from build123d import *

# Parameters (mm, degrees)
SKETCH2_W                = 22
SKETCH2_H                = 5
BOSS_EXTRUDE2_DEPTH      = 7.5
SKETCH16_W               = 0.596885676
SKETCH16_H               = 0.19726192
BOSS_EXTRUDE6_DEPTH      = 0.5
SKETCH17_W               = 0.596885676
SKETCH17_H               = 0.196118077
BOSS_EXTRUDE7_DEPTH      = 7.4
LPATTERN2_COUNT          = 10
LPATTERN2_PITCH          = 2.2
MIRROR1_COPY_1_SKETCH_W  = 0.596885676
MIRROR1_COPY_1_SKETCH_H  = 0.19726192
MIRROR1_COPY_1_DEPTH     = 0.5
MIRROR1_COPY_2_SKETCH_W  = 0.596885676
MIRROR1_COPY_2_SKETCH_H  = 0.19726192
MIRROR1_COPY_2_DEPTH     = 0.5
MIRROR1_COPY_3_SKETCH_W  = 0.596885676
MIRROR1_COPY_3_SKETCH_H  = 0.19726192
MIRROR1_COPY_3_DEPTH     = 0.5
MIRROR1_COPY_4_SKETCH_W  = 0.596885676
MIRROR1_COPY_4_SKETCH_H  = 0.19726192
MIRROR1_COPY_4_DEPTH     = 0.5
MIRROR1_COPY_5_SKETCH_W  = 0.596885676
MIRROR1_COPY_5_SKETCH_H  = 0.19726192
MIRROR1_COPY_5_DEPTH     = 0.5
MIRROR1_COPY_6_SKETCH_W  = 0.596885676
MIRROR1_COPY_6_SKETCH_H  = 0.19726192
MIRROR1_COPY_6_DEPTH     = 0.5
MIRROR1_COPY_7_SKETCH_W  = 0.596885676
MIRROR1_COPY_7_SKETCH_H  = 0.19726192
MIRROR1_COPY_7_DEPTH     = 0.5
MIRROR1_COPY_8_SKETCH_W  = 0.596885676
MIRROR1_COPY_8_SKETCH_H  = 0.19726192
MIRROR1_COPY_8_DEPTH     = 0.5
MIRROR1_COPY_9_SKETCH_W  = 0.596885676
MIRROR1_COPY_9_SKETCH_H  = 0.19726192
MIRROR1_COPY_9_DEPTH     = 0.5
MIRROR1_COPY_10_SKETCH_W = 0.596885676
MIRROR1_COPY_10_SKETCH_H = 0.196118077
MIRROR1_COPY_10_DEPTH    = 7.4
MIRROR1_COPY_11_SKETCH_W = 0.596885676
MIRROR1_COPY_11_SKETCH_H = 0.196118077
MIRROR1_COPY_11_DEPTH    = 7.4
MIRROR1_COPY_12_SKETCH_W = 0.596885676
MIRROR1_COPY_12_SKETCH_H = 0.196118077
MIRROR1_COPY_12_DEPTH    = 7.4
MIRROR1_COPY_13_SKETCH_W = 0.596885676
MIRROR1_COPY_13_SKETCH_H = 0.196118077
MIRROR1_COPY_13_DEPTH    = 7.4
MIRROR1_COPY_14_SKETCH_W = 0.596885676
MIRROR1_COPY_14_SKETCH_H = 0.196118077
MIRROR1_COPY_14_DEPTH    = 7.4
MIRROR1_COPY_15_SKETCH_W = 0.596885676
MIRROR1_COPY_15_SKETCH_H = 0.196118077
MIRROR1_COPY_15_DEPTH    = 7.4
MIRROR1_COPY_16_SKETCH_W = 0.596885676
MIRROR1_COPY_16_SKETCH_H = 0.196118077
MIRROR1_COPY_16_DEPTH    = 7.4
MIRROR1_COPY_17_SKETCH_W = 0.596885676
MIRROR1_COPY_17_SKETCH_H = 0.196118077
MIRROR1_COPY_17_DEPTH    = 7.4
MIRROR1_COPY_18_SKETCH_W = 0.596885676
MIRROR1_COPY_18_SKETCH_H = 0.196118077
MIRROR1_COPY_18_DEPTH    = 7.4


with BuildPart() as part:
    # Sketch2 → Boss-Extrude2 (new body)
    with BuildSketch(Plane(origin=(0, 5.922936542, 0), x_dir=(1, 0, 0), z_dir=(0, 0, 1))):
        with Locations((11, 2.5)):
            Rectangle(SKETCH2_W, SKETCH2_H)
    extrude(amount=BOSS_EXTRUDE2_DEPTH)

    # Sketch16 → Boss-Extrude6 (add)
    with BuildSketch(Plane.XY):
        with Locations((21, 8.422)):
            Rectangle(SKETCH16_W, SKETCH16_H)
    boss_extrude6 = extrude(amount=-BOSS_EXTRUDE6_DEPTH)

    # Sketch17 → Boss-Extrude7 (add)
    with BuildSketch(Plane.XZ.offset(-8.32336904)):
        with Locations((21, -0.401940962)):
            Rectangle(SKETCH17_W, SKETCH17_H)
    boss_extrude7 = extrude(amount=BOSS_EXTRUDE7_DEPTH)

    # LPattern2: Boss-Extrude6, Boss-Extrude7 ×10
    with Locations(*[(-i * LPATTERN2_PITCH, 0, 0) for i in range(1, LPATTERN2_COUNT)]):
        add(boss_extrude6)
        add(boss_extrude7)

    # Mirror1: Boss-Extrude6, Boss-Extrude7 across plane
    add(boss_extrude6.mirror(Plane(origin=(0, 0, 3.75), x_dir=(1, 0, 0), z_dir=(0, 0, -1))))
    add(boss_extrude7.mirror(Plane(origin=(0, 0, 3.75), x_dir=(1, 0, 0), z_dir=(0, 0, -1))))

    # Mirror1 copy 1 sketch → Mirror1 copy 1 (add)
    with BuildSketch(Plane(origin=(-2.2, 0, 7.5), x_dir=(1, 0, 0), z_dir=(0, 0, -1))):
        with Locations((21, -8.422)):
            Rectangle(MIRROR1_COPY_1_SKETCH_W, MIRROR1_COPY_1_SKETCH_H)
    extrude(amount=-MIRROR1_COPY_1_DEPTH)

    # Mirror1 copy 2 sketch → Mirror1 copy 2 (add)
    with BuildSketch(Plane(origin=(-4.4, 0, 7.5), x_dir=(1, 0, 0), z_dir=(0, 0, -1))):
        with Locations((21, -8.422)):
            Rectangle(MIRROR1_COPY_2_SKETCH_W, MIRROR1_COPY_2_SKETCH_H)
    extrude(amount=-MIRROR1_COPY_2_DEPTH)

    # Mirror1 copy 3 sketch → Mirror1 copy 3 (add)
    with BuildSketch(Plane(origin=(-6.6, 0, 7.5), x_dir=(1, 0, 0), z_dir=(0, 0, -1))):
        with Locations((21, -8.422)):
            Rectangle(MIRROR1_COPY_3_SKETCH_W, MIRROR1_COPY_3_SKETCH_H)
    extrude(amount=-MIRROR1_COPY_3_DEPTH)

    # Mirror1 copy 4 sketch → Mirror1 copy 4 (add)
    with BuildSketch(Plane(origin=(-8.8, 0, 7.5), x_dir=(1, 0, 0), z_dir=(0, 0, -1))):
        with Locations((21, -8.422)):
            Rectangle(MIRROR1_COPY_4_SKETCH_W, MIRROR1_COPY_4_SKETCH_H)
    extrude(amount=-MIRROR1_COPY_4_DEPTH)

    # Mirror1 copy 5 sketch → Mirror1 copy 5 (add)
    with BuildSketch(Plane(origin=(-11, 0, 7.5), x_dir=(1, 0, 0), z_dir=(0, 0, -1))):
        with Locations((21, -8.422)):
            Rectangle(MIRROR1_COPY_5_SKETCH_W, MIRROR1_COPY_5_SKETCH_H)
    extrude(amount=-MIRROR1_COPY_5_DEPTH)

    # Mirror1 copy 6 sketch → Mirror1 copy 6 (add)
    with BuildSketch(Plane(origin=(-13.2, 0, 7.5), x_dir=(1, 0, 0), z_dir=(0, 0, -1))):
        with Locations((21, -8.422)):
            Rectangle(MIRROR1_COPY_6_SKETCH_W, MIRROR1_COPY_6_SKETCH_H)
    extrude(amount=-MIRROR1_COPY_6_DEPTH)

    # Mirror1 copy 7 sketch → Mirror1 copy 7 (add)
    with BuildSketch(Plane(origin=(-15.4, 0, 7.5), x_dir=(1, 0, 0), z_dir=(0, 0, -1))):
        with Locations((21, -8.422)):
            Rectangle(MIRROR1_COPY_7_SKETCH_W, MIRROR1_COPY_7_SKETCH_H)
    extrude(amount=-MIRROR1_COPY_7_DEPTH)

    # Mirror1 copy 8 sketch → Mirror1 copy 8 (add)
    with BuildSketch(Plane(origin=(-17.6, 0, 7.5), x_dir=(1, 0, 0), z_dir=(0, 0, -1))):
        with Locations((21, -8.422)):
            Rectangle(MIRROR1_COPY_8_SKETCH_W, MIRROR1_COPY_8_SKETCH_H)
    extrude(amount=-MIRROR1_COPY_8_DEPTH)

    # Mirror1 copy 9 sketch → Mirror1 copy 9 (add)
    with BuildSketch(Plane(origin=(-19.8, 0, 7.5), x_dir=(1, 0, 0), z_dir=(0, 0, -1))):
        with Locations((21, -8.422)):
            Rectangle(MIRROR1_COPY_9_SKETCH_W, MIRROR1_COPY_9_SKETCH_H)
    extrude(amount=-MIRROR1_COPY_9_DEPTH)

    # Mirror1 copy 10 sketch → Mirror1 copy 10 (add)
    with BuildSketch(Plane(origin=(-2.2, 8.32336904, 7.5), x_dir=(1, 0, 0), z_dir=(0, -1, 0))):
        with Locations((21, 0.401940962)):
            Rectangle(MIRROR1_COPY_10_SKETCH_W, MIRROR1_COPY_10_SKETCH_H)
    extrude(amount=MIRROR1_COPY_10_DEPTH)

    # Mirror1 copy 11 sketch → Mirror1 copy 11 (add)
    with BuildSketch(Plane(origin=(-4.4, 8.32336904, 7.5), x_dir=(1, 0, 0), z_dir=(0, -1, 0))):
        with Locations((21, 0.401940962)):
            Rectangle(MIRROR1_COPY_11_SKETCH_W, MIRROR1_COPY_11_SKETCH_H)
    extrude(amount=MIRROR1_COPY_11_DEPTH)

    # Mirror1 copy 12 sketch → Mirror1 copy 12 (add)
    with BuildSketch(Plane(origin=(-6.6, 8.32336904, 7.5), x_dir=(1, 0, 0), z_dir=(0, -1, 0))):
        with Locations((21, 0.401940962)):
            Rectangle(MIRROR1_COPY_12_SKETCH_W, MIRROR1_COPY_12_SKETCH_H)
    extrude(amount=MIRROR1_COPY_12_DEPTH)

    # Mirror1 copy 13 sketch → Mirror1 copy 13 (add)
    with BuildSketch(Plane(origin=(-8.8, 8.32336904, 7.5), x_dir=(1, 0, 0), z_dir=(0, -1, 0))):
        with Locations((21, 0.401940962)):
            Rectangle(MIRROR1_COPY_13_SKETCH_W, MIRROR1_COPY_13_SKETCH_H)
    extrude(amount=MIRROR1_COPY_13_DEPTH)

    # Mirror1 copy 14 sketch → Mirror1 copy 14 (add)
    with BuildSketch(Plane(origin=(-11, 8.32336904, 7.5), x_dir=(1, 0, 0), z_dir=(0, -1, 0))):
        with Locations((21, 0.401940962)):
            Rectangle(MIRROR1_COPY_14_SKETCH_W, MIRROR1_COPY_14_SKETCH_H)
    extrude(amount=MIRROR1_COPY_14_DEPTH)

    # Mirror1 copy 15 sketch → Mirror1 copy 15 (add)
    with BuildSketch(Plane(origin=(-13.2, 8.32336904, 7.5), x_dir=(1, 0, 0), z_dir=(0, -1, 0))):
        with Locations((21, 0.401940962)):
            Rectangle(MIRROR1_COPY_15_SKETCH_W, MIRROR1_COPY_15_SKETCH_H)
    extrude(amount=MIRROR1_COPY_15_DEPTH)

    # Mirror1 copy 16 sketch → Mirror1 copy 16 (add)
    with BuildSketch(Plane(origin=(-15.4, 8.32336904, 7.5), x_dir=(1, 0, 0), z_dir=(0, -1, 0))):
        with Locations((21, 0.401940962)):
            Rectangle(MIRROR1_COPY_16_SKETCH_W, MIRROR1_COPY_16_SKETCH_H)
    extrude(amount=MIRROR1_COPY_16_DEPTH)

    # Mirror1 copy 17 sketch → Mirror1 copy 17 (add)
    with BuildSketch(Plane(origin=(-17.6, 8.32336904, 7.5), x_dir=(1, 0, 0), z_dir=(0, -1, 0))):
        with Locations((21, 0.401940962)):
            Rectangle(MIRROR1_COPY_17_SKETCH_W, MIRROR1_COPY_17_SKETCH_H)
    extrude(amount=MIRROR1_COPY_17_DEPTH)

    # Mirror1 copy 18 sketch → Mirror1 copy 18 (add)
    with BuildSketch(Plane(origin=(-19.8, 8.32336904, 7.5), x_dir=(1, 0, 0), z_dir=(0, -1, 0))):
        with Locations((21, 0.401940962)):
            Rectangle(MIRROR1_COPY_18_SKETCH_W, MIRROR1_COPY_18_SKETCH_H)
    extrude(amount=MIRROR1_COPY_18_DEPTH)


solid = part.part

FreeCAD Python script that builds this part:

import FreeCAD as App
import Part
import Sketcher
Q = App.Units.Quantity


def add_polygon(sketch, points):
    """Adds a closed chain of lines whose ends are joined by coincident constraints."""
    first, n = sketch.GeometryCount, len(points)
    for a, b in zip(points, points[1:] + points[:1]):
        sketch.addGeometry(Part.LineSegment(App.Vector(*a, 0), App.Vector(*b, 0)), False)
    for i in range(n):
        sketch.addConstraint(Sketcher.Constraint("Coincident", first + i, 2, first + (i + 1) % n, 1))

doc = App.newDocument("Part")
body = doc.addObject("PartDesign::Body", "Body")

# Sketch on XY plane
sketch1 = body.newObject("Sketcher::SketchObject", "Sketch")
sketch1.AttachmentSupport = (doc.getObject("XY_Plane"), [""])
sketch1.MapMode = "FlatFace"
add_polygon(sketch1, [(0, 10.922937), (0, 5.922937), (22, 5.922937), (22, 10.922937)])  # lines 0-3
sketch1.addConstraint([
    Sketcher.Constraint("Vertical", 0),
    Sketcher.Constraint("Horizontal", 1),
    Sketcher.Constraint("Vertical", 2),
    Sketcher.Constraint("Horizontal", 3),
    Sketcher.Constraint("PointOnObject", 0, 2, -2),
    Sketcher.Constraint("DistanceX", 1, 1, 1, 2, Q("22 mm")),
    Sketcher.Constraint("DistanceY", 0, 2, 0, 1, Q("5 mm")),
    Sketcher.Constraint("DistanceY", -1, 1, 0, 2, Q("5.922937 mm")),
])
pad1 = body.newObject("PartDesign::Pad", "Pad")
pad1.Profile = sketch1
pad1.Length = 7.5

# Sketch on XY plane
sketch2 = body.newObject("Sketcher::SketchObject", "Sketch001")
sketch2.AttachmentSupport = (doc.getObject("XY_Plane"), [""])
sketch2.MapMode = "FlatFace"
add_polygon(sketch2, [(20.701557, 8.520631), (20.701557, 8.323369), (21.298443, 8.323369), (21.298443, 8.520631)])  # lines 0-3
sketch2.addConstraint([
    Sketcher.Constraint("Vertical", 0),
    Sketcher.Constraint("Horizontal", 1),
    Sketcher.Constraint("Vertical", 2),
    Sketcher.Constraint("Horizontal", 3),
    Sketcher.Constraint("DistanceY", 0, 2, 0, 1, Q("0.197262 mm")),
    Sketcher.Constraint("DistanceX", 1, 1, 1, 2, Q("0.596886 mm")),
    Sketcher.Constraint("DistanceY", -1, 1, 0, 2, Q("8.323369 mm")),
    Sketcher.Constraint("DistanceX", -1, 1, 0, 2, Q("20.701557 mm")),
])
pad2 = body.newObject("PartDesign::Pad", "Pad001")
pad2.Profile = sketch2
pad2.Length = 0.5
pad2.Reversed = True

# Sketch on XZ plane
sketch3 = body.newObject("Sketcher::SketchObject", "Sketch002")
sketch3.AttachmentSupport = (doc.getObject("XZ_Plane"), [""])
sketch3.MapMode = "FlatFace"
sketch3.AttachmentOffset = App.Placement(App.Vector(0, 0, -8.323369), App.Rotation())
add_polygon(sketch3, [(20.701557, -0.303882), (20.701557, -0.5), (21.298443, -0.5), (21.298443, -0.303882)])  # lines 0-3
sketch3.addConstraint([
    Sketcher.Constraint("Vertical", 0),
    Sketcher.Constraint("Horizontal", 1),
    Sketcher.Constraint("Vertical", 2),
    Sketcher.Constraint("Horizontal", 3),
    Sketcher.Constraint("DistanceY", 0, 2, -1, 1, Q("0.5 mm")),
    Sketcher.Constraint("DistanceY", 0, 2, 0, 1, Q("0.196118 mm")),
    Sketcher.Constraint("DistanceX", 1, 1, 1, 2, Q("0.596886 mm")),
    Sketcher.Constraint("DistanceX", -1, 1, 0, 2, Q("20.701557 mm")),
])
pad3 = body.newObject("PartDesign::Pad", "Pad002")
pad3.Profile = sketch3
pad3.Length = 7.4
doc.recompute()

linearpattern = body.newObject("PartDesign::LinearPattern", "LinearPattern")
linearpattern.Originals = [pad2, pad3]
linearpattern.Direction = (doc.getObject("X_Axis"), [""])
linearpattern.Mode = "offset"
linearpattern.Offset = 2.2
linearpattern.Occurrences = 10
linearpattern.Reversed = True
body.Tip = linearpattern
doc.recompute()

datumplane = body.newObject("PartDesign::Plane", "DatumPlane")
datumplane.AttachmentSupport = (doc.getObject("XY_Plane"), [""])
datumplane.MapMode = "FlatFace"
datumplane.AttachmentOffset = App.Placement(App.Vector(0, 0, 3.75), App.Rotation())
mirrored = body.newObject("PartDesign::Mirrored", "Mirrored")
mirrored.Originals = [pad2, pad3]
mirrored.MirrorPlane = (datumplane, [""])
body.Tip = mirrored

# Sketch on XY plane
sketch4 = body.newObject("Sketcher::SketchObject", "Sketch003")
sketch4.AttachmentSupport = (doc.getObject("XY_Plane"), [""])
sketch4.MapMode = "FlatFace"
sketch4.AttachmentOffset = App.Placement(App.Vector(0, 0, 7.5), App.Rotation())
add_polygon(sketch4, [(18.501557, 8.323369), (18.501557, 8.520631), (19.098443, 8.520631), (19.098443, 8.323369)])  # lines 0-3
sketch4.addConstraint([
    Sketcher.Constraint("Vertical", 0),
    Sketcher.Constraint("Horizontal", 1),
    Sketcher.Constraint("Vertical", 2),
    Sketcher.Constraint("Horizontal", 3),
    Sketcher.Constraint("DistanceY", 0, 1, 0, 2, Q("0.197262 mm")),
    Sketcher.Constraint("DistanceX", 1, 1, 1, 2, Q("0.596886 mm")),
    Sketcher.Constraint("DistanceY", -1, 1, 0, 2, Q("8.520631 mm")),
    Sketcher.Constraint("DistanceX", -1, 1, 0, 2, Q("18.501557 mm")),
])
pad4 = body.newObject("PartDesign::Pad", "Pad003")
pad4.Profile = sketch4
pad4.Length = 0.5

# Sketch on XY plane
sketch5 = body.newObject("Sketcher::SketchObject", "Sketch004")
sketch5.AttachmentSupport = (doc.getObject("XY_Plane"), [""])
sketch5.MapMode = "FlatFace"
sketch5.AttachmentOffset = App.Placement(App.Vector(0, 0, 7.5), App.Rotation())
add_polygon(sketch5, [(16.301557, 8.323369), (16.301557, 8.520631), (16.898443, 8.520631), (16.898443, 8.323369)])  # lines 0-3
sketch5.addConstraint([
    Sketcher.Constraint("Vertical", 0),
    Sketcher.Constraint("Horizontal", 1),
    Sketcher.Constraint("Vertical", 2),
    Sketcher.Constraint("Horizontal", 3),
    Sketcher.Constraint("DistanceY", 0, 1, 0, 2, Q("0.197262 mm")),
    Sketcher.Constraint("DistanceX", 1, 1, 1, 2, Q("0.596886 mm")),
    Sketcher.Constraint("DistanceY", -1, 1, 0, 2, Q("8.520631 mm")),
    Sketcher.Constraint("DistanceX", -1, 1, 0, 2, Q("16.301557 mm")),
])
pad5 = body.newObject("PartDesign::Pad", "Pad004")
pad5.Profile = sketch5
pad5.Length = 0.5

# Sketch on XY plane
sketch6 = body.newObject("Sketcher::SketchObject", "Sketch005")
sketch6.AttachmentSupport = (doc.getObject("XY_Plane"), [""])
sketch6.MapMode = "FlatFace"
sketch6.AttachmentOffset = App.Placement(App.Vector(0, 0, 7.5), App.Rotation())
add_polygon(sketch6, [(14.101557, 8.323369), (14.101557, 8.520631), (14.698443, 8.520631), (14.698443, 8.323369)])  # lines 0-3
sketch6.addConstraint([
    Sketcher.Constraint("Vertical", 0),
    Sketcher.Constraint("Horizontal", 1),
    Sketcher.Constraint("Vertical", 2),
    Sketcher.Constraint("Horizontal", 3),
    Sketcher.Constraint("DistanceY", 0, 1, 0, 2, Q("0.197262 mm")),
    Sketcher.Constraint("DistanceX", 1, 1, 1, 2, Q("0.596886 mm")),
    Sketcher.Constraint("DistanceY", -1, 1, 0, 2, Q("8.520631 mm")),
    Sketcher.Constraint("DistanceX", -1, 1, 0, 2, Q("14.101557 mm")),
])
pad6 = body.newObject("PartDesign::Pad", "Pad005")
pad6.Profile = sketch6
pad6.Length = 0.5

# Sketch on XY plane
sketch7 = body.newObject("Sketcher::SketchObject", "Sketch006")
sketch7.AttachmentSupport = (doc.getObject("XY_Plane"), [""])
sketch7.MapMode = "FlatFace"
sketch7.AttachmentOffset = App.Placement(App.Vector(0, 0, 7.5), App.Rotation())
add_polygon(sketch7, [(11.901557, 8.323369), (11.901557, 8.520631), (12.498443, 8.520631), (12.498443, 8.323369)])  # lines 0-3
sketch7.addConstraint([
    Sketcher.Constraint("Vertical", 0),
    Sketcher.Constraint("Horizontal", 1),
    Sketcher.Constraint("Vertical", 2),
    Sketcher.Constraint("Horizontal", 3),
    Sketcher.Constraint("DistanceY", 0, 1, 0, 2, Q("0.197262 mm")),
    Sketcher.Constraint("DistanceX", 1, 1, 1, 2, Q("0.596886 mm")),
    Sketcher.Constraint("DistanceY", -1, 1, 0, 2, Q("8.520631 mm")),
    Sketcher.Constraint("DistanceX", -1, 1, 0, 2, Q("11.901557 mm")),
])
pad7 = body.newObject("PartDesign::Pad", "Pad006")
pad7.Profile = sketch7
pad7.Length = 0.5

# Sketch on XY plane
sketch8 = body.newObject("Sketcher::SketchObject", "Sketch007")
sketch8.AttachmentSupport = (doc.getObject("XY_Plane"), [""])
sketch8.MapMode = "FlatFace"
sketch8.AttachmentOffset = App.Placement(App.Vector(0, 0, 7.5), App.Rotation())
add_polygon(sketch8, [(9.701557, 8.323369), (9.701557, 8.520631), (10.298443, 8.520631), (10.298443, 8.323369)])  # lines 0-3
sketch8.addConstraint([
    Sketcher.Constraint("Vertical", 0),
    Sketcher.Constraint("Horizontal", 1),
    Sketcher.Constraint("Vertical", 2),
    Sketcher.Constraint("Horizontal", 3),
    Sketcher.Constraint("DistanceY", 0, 1, 0, 2, Q("0.197262 mm")),
    Sketcher.Constraint("DistanceX", 1, 1, 1, 2, Q("0.596886 mm")),
    Sketcher.Constraint("DistanceY", -1, 1, 0, 2, Q("8.520631 mm")),
    Sketcher.Constraint("DistanceX", -1, 1, 0, 2, Q("9.701557 mm")),
])
pad8 = body.newObject("PartDesign::Pad", "Pad007")
pad8.Profile = sketch8
pad8.Length = 0.5

# Sketch on XY plane
sketch9 = body.newObject("Sketcher::SketchObject", "Sketch008")
sketch9.AttachmentSupport = (doc.getObject("XY_Plane"), [""])
sketch9.MapMode = "FlatFace"
sketch9.AttachmentOffset = App.Placement(App.Vector(0, 0, 7.5), App.Rotation())
add_polygon(sketch9, [(7.501557, 8.323369), (7.501557, 8.520631), (8.098443, 8.520631), (8.098443, 8.323369)])  # lines 0-3
sketch9.addConstraint([
    Sketcher.Constraint("Vertical", 0),
    Sketcher.Constraint("Horizontal", 1),
    Sketcher.Constraint("Vertical", 2),
    Sketcher.Constraint("Horizontal", 3),
    Sketcher.Constraint("DistanceY", 0, 1, 0, 2, Q("0.197262 mm")),
    Sketcher.Constraint("DistanceX", 1, 1, 1, 2, Q("0.596886 mm")),
    Sketcher.Constraint("DistanceY", -1, 1, 0, 2, Q("8.520631 mm")),
    Sketcher.Constraint("DistanceX", -1, 1, 0, 2, Q("7.501557 mm")),
])
pad9 = body.newObject("PartDesign::Pad", "Pad008")
pad9.Profile = sketch9
pad9.Length = 0.5

# Sketch on XY plane
sketch10 = body.newObject("Sketcher::SketchObject", "Sketch009")
sketch10.AttachmentSupport = (doc.getObject("XY_Plane"), [""])
sketch10.MapMode = "FlatFace"
sketch10.AttachmentOffset = App.Placement(App.Vector(0, 0, 7.5), App.Rotation())
add_polygon(sketch10, [(5.301557, 8.323369), (5.301557, 8.520631), (5.898443, 8.520631), (5.898443, 8.323369)])  # lines 0-3
sketch10.addConstraint([
    Sketcher.Constraint("Vertical", 0),
    Sketcher.Constraint("Horizontal", 1),
    Sketcher.Constraint("Vertical", 2),
    Sketcher.Constraint("Horizontal", 3),
    Sketcher.Constraint("DistanceY", 0, 1, 0, 2, Q("0.197262 mm")),
    Sketcher.Constraint("DistanceX", 1, 1, 1, 2, Q("0.596886 mm")),
    Sketcher.Constraint("DistanceY", -1, 1, 0, 2, Q("8.520631 mm")),
    Sketcher.Constraint("DistanceX", -1, 1, 0, 2, Q("5.301557 mm")),
])
pad10 = body.newObject("PartDesign::Pad", "Pad009")
pad10.Profile = sketch10
pad10.Length = 0.5

# Sketch on XY plane
sketch11 = body.newObject("Sketcher::SketchObject", "Sketch010")
sketch11.AttachmentSupport = (doc.getObject("XY_Plane"), [""])
sketch11.MapMode = "FlatFace"
sketch11.AttachmentOffset = App.Placement(App.Vector(0, 0, 7.5), App.Rotation())
add_polygon(sketch11, [(3.101557, 8.323369), (3.101557, 8.520631), (3.698443, 8.520631), (3.698443, 8.323369)])  # lines 0-3
sketch11.addConstraint([
    Sketcher.Constraint("Vertical", 0),
    Sketcher.Constraint("Horizontal", 1),
    Sketcher.Constraint("Vertical", 2),
    Sketcher.Constraint("Horizontal", 3),
    Sketcher.Constraint("DistanceY", 0, 1, 0, 2, Q("0.197262 mm")),
    Sketcher.Constraint("DistanceX", 1, 1, 1, 2, Q("0.596886 mm")),
    Sketcher.Constraint("DistanceY", -1, 1, 0, 2, Q("8.520631 mm")),
    Sketcher.Constraint("DistanceX", -1, 1, 0, 2, Q("3.101557 mm")),
])
pad11 = body.newObject("PartDesign::Pad", "Pad010")
pad11.Profile = sketch11
pad11.Length = 0.5

# Sketch on XY plane
sketch12 = body.newObject("Sketcher::SketchObject", "Sketch011")
sketch12.AttachmentSupport = (doc.getObject("XY_Plane"), [""])
sketch12.MapMode = "FlatFace"
sketch12.AttachmentOffset = App.Placement(App.Vector(0, 0, 7.5), App.Rotation())
add_polygon(sketch12, [(0.901557, 8.323369), (0.901557, 8.520631), (1.498443, 8.520631), (1.498443, 8.323369)])  # lines 0-3
sketch12.addConstraint([
    Sketcher.Constraint("Vertical", 0),
    Sketcher.Constraint("Horizontal", 1),
    Sketcher.Constraint("Vertical", 2),
    Sketcher.Constraint("Horizontal", 3),
    Sketcher.Constraint("DistanceY", 0, 1, 0, 2, Q("0.197262 mm")),
    Sketcher.Constraint("DistanceX", 1, 1, 1, 2, Q("0.596886 mm")),
    Sketcher.Constraint("DistanceY", -1, 1, 0, 2, Q("8.520631 mm")),
    Sketcher.Constraint("DistanceX", -1, 1, 0, 2, Q("0.901557 mm")),
])
pad12 = body.newObject("PartDesign::Pad", "Pad011")
pad12.Profile = sketch12
pad12.Length = 0.5

# Sketch on XZ plane
sketch13 = body.newObject("Sketcher::SketchObject", "Sketch012")
sketch13.AttachmentSupport = (doc.getObject("XZ_Plane"), [""])
sketch13.MapMode = "FlatFace"
sketch13.AttachmentOffset = App.Placement(App.Vector(0, 0, -8.323369), App.Rotation())
add_polygon(sketch13, [(18.501557, 8), (18.501557, 7.803882), (19.098443, 7.803882), (19.098443, 8)])  # lines 0-3
sketch13.addConstraint([
    Sketcher.Constraint("Vertical", 0),
    Sketcher.Constraint("Horizontal", 1),
    Sketcher.Constraint("Vertical", 2),
    Sketcher.Constraint("Horizontal", 3),
    Sketcher.Constraint("DistanceY", -1, 1, 2, 2, Q("8 mm")),
    Sketcher.Constraint("DistanceY", 0, 2, 0, 1, Q("0.196118 mm")),
    Sketcher.Constraint("DistanceX", 1, 1, 1, 2, Q("0.596886 mm")),
    Sketcher.Constraint("DistanceX", -1, 1, 0, 2, Q("18.501557 mm")),
])
pad13 = body.newObject("PartDesign::Pad", "Pad012")
pad13.Profile = sketch13
pad13.Length = 7.4

# Sketch on XZ plane
sketch14 = body.newObject("Sketcher::SketchObject", "Sketch013")
sketch14.AttachmentSupport = (doc.getObject("XZ_Plane"), [""])
sketch14.MapMode = "FlatFace"
sketch14.AttachmentOffset = App.Placement(App.Vector(0, 0, -8.323369), App.Rotation())
add_polygon(sketch14, [(16.301557, 8), (16.301557, 7.803882), (16.898443, 7.803882), (16.898443, 8)])  # lines 0-3
sketch14.addConstraint([
    Sketcher.Constraint("Vertical", 0),
    Sketcher.Constraint("Horizontal", 1),
    Sketcher.Constraint("Vertical", 2),
    Sketcher.Constraint("Horizontal", 3),
    Sketcher.Constraint("DistanceY", -1, 1, 2, 2, Q("8 mm")),
    Sketcher.Constraint("DistanceY", 0, 2, 0, 1, Q("0.196118 mm")),
    Sketcher.Constraint("DistanceX", 1, 1, 1, 2, Q("0.596886 mm")),
    Sketcher.Constraint("DistanceX", -1, 1, 0, 2, Q("16.301557 mm")),
])
pad14 = body.newObject("PartDesign::Pad", "Pad013")
pad14.Profile = sketch14
pad14.Length = 7.4

# Sketch on XZ plane
sketch15 = body.newObject("Sketcher::SketchObject", "Sketch014")
sketch15.AttachmentSupport = (doc.getObject("XZ_Plane"), [""])
sketch15.MapMode = "FlatFace"
sketch15.AttachmentOffset = App.Placement(App.Vector(0, 0, -8.323369), App.Rotation())
add_polygon(sketch15, [(14.101557, 8), (14.101557, 7.803882), (14.698443, 7.803882), (14.698443, 8)])  # lines 0-3
sketch15.addConstraint([
    Sketcher.Constraint("Vertical", 0),
    Sketcher.Constraint("Horizontal", 1),
    Sketcher.Constraint("Vertical", 2),
    Sketcher.Constraint("Horizontal", 3),
    Sketcher.Constraint("DistanceY", -1, 1, 2, 2, Q("8 mm")),
    Sketcher.Constraint("DistanceY", 0, 2, 0, 1, Q("0.196118 mm")),
    Sketcher.Constraint("DistanceX", 1, 1, 1, 2, Q("0.596886 mm")),
    Sketcher.Constraint("DistanceX", -1, 1, 0, 2, Q("14.101557 mm")),
])
pad15 = body.newObject("PartDesign::Pad", "Pad014")
pad15.Profile = sketch15
pad15.Length = 7.4

# Sketch on XZ plane
sketch16 = body.newObject("Sketcher::SketchObject", "Sketch015")
sketch16.AttachmentSupport = (doc.getObject("XZ_Plane"), [""])
sketch16.MapMode = "FlatFace"
sketch16.AttachmentOffset = App.Placement(App.Vector(0, 0, -8.323369), App.Rotation())
add_polygon(sketch16, [(11.901557, 8), (11.901557, 7.803882), (12.498443, 7.803882), (12.498443, 8)])  # lines 0-3
sketch16.addConstraint([
    Sketcher.Constraint("Vertical", 0),
    Sketcher.Constraint("Horizontal", 1),
    Sketcher.Constraint("Vertical", 2),
    Sketcher.Constraint("Horizontal", 3),
    Sketcher.Constraint("DistanceY", -1, 1, 2, 2, Q("8 mm")),
    Sketcher.Constraint("DistanceY", 0, 2, 0, 1, Q("0.196118 mm")),
    Sketcher.Constraint("DistanceX", 1, 1, 1, 2, Q("0.596886 mm")),
    Sketcher.Constraint("DistanceX", -1, 1, 0, 2, Q("11.901557 mm")),
])
pad16 = body.newObject("PartDesign::Pad", "Pad015")
pad16.Profile = sketch16
pad16.Length = 7.4

# Sketch on XZ plane
sketch17 = body.newObject("Sketcher::SketchObject", "Sketch016")
sketch17.AttachmentSupport = (doc.getObject("XZ_Plane"), [""])
sketch17.MapMode = "FlatFace"
sketch17.AttachmentOffset = App.Placement(App.Vector(0, 0, -8.323369), App.Rotation())
add_polygon(sketch17, [(9.701557, 8), (9.701557, 7.803882), (10.298443, 7.803882), (10.298443, 8)])  # lines 0-3
sketch17.addConstraint([
    Sketcher.Constraint("Vertical", 0),
    Sketcher.Constraint("Horizontal", 1),
    Sketcher.Constraint("Vertical", 2),
    Sketcher.Constraint("Horizontal", 3),
    Sketcher.Constraint("DistanceY", -1, 1, 2, 2, Q("8 mm")),
    Sketcher.Constraint("DistanceY", 0, 2, 0, 1, Q("0.196118 mm")),
    Sketcher.Constraint("DistanceX", 1, 1, 1, 2, Q("0.596886 mm")),
    Sketcher.Constraint("DistanceX", -1, 1, 0, 2, Q("9.701557 mm")),
])
pad17 = body.newObject("PartDesign::Pad", "Pad016")
pad17.Profile = sketch17
pad17.Length = 7.4

# Sketch on XZ plane
sketch18 = body.newObject("Sketcher::SketchObject", "Sketch017")
sketch18.AttachmentSupport = (doc.getObject("XZ_Plane"), [""])
sketch18.MapMode = "FlatFace"
sketch18.AttachmentOffset = App.Placement(App.Vector(0, 0, -8.323369), App.Rotation())
add_polygon(sketch18, [(7.501557, 8), (7.501557, 7.803882), (8.098443, 7.803882), (8.098443, 8)])  # lines 0-3
sketch18.addConstraint([
    Sketcher.Constraint("Vertical", 0),
    Sketcher.Constraint("Horizontal", 1),
    Sketcher.Constraint("Vertical", 2),
    Sketcher.Constraint("Horizontal", 3),
    Sketcher.Constraint("DistanceY", -1, 1, 2, 2, Q("8 mm")),
    Sketcher.Constraint("DistanceY", 0, 2, 0, 1, Q("0.196118 mm")),
    Sketcher.Constraint("DistanceX", 1, 1, 1, 2, Q("0.596886 mm")),
    Sketcher.Constraint("DistanceX", -1, 1, 0, 2, Q("7.501557 mm")),
])
pad18 = body.newObject("PartDesign::Pad", "Pad017")
pad18.Profile = sketch18
pad18.Length = 7.4

# Sketch on XZ plane
sketch19 = body.newObject("Sketcher::SketchObject", "Sketch018")
sketch19.AttachmentSupport = (doc.getObject("XZ_Plane"), [""])
sketch19.MapMode = "FlatFace"
sketch19.AttachmentOffset = App.Placement(App.Vector(0, 0, -8.323369), App.Rotation())
add_polygon(sketch19, [(5.301557, 8), (5.301557, 7.803882), (5.898443, 7.803882), (5.898443, 8)])  # lines 0-3
sketch19.addConstraint([
    Sketcher.Constraint("Vertical", 0),
    Sketcher.Constraint("Horizontal", 1),
    Sketcher.Constraint("Vertical", 2),
    Sketcher.Constraint("Horizontal", 3),
    Sketcher.Constraint("DistanceY", -1, 1, 2, 2, Q("8 mm")),
    Sketcher.Constraint("DistanceY", 0, 2, 0, 1, Q("0.196118 mm")),
    Sketcher.Constraint("DistanceX", 1, 1, 1, 2, Q("0.596886 mm")),
    Sketcher.Constraint("DistanceX", -1, 1, 0, 2, Q("5.301557 mm")),
])
pad19 = body.newObject("PartDesign::Pad", "Pad018")
pad19.Profile = sketch19
pad19.Length = 7.4

# Sketch on XZ plane
sketch20 = body.newObject("Sketcher::SketchObject", "Sketch019")
sketch20.AttachmentSupport = (doc.getObject("XZ_Plane"), [""])
sketch20.MapMode = "FlatFace"
sketch20.AttachmentOffset = App.Placement(App.Vector(0, 0, -8.323369), App.Rotation())
add_polygon(sketch20, [(3.101557, 8), (3.101557, 7.803882), (3.698443, 7.803882), (3.698443, 8)])  # lines 0-3
sketch20.addConstraint([
    Sketcher.Constraint("Vertical", 0),
    Sketcher.Constraint("Horizontal", 1),
    Sketcher.Constraint("Vertical", 2),
    Sketcher.Constraint("Horizontal", 3),
    Sketcher.Constraint("DistanceY", -1, 1, 2, 2, Q("8 mm")),
    Sketcher.Constraint("DistanceY", 0, 2, 0, 1, Q("0.196118 mm")),
    Sketcher.Constraint("DistanceX", 1, 1, 1, 2, Q("0.596886 mm")),
    Sketcher.Constraint("DistanceX", -1, 1, 0, 2, Q("3.101557 mm")),
])
pad20 = body.newObject("PartDesign::Pad", "Pad019")
pad20.Profile = sketch20
pad20.Length = 7.4

# Sketch on XZ plane
sketch21 = body.newObject("Sketcher::SketchObject", "Sketch020")
sketch21.AttachmentSupport = (doc.getObject("XZ_Plane"), [""])
sketch21.MapMode = "FlatFace"
sketch21.AttachmentOffset = App.Placement(App.Vector(0, 0, -8.323369), App.Rotation())
add_polygon(sketch21, [(0.901557, 8), (0.901557, 7.803882), (1.498443, 7.803882), (1.498443, 8)])  # lines 0-3
sketch21.addConstraint([
    Sketcher.Constraint("Vertical", 0),
    Sketcher.Constraint("Horizontal", 1),
    Sketcher.Constraint("Vertical", 2),
    Sketcher.Constraint("Horizontal", 3),
    Sketcher.Constraint("DistanceY", -1, 1, 2, 2, Q("8 mm")),
    Sketcher.Constraint("DistanceY", 0, 2, 0, 1, Q("0.196118 mm")),
    Sketcher.Constraint("DistanceX", 1, 1, 1, 2, Q("0.596886 mm")),
    Sketcher.Constraint("DistanceX", -1, 1, 0, 2, Q("0.901557 mm")),
])
pad21 = body.newObject("PartDesign::Pad", "Pad020")
pad21.Profile = sketch21
pad21.Length = 7.4

doc.recompute()
